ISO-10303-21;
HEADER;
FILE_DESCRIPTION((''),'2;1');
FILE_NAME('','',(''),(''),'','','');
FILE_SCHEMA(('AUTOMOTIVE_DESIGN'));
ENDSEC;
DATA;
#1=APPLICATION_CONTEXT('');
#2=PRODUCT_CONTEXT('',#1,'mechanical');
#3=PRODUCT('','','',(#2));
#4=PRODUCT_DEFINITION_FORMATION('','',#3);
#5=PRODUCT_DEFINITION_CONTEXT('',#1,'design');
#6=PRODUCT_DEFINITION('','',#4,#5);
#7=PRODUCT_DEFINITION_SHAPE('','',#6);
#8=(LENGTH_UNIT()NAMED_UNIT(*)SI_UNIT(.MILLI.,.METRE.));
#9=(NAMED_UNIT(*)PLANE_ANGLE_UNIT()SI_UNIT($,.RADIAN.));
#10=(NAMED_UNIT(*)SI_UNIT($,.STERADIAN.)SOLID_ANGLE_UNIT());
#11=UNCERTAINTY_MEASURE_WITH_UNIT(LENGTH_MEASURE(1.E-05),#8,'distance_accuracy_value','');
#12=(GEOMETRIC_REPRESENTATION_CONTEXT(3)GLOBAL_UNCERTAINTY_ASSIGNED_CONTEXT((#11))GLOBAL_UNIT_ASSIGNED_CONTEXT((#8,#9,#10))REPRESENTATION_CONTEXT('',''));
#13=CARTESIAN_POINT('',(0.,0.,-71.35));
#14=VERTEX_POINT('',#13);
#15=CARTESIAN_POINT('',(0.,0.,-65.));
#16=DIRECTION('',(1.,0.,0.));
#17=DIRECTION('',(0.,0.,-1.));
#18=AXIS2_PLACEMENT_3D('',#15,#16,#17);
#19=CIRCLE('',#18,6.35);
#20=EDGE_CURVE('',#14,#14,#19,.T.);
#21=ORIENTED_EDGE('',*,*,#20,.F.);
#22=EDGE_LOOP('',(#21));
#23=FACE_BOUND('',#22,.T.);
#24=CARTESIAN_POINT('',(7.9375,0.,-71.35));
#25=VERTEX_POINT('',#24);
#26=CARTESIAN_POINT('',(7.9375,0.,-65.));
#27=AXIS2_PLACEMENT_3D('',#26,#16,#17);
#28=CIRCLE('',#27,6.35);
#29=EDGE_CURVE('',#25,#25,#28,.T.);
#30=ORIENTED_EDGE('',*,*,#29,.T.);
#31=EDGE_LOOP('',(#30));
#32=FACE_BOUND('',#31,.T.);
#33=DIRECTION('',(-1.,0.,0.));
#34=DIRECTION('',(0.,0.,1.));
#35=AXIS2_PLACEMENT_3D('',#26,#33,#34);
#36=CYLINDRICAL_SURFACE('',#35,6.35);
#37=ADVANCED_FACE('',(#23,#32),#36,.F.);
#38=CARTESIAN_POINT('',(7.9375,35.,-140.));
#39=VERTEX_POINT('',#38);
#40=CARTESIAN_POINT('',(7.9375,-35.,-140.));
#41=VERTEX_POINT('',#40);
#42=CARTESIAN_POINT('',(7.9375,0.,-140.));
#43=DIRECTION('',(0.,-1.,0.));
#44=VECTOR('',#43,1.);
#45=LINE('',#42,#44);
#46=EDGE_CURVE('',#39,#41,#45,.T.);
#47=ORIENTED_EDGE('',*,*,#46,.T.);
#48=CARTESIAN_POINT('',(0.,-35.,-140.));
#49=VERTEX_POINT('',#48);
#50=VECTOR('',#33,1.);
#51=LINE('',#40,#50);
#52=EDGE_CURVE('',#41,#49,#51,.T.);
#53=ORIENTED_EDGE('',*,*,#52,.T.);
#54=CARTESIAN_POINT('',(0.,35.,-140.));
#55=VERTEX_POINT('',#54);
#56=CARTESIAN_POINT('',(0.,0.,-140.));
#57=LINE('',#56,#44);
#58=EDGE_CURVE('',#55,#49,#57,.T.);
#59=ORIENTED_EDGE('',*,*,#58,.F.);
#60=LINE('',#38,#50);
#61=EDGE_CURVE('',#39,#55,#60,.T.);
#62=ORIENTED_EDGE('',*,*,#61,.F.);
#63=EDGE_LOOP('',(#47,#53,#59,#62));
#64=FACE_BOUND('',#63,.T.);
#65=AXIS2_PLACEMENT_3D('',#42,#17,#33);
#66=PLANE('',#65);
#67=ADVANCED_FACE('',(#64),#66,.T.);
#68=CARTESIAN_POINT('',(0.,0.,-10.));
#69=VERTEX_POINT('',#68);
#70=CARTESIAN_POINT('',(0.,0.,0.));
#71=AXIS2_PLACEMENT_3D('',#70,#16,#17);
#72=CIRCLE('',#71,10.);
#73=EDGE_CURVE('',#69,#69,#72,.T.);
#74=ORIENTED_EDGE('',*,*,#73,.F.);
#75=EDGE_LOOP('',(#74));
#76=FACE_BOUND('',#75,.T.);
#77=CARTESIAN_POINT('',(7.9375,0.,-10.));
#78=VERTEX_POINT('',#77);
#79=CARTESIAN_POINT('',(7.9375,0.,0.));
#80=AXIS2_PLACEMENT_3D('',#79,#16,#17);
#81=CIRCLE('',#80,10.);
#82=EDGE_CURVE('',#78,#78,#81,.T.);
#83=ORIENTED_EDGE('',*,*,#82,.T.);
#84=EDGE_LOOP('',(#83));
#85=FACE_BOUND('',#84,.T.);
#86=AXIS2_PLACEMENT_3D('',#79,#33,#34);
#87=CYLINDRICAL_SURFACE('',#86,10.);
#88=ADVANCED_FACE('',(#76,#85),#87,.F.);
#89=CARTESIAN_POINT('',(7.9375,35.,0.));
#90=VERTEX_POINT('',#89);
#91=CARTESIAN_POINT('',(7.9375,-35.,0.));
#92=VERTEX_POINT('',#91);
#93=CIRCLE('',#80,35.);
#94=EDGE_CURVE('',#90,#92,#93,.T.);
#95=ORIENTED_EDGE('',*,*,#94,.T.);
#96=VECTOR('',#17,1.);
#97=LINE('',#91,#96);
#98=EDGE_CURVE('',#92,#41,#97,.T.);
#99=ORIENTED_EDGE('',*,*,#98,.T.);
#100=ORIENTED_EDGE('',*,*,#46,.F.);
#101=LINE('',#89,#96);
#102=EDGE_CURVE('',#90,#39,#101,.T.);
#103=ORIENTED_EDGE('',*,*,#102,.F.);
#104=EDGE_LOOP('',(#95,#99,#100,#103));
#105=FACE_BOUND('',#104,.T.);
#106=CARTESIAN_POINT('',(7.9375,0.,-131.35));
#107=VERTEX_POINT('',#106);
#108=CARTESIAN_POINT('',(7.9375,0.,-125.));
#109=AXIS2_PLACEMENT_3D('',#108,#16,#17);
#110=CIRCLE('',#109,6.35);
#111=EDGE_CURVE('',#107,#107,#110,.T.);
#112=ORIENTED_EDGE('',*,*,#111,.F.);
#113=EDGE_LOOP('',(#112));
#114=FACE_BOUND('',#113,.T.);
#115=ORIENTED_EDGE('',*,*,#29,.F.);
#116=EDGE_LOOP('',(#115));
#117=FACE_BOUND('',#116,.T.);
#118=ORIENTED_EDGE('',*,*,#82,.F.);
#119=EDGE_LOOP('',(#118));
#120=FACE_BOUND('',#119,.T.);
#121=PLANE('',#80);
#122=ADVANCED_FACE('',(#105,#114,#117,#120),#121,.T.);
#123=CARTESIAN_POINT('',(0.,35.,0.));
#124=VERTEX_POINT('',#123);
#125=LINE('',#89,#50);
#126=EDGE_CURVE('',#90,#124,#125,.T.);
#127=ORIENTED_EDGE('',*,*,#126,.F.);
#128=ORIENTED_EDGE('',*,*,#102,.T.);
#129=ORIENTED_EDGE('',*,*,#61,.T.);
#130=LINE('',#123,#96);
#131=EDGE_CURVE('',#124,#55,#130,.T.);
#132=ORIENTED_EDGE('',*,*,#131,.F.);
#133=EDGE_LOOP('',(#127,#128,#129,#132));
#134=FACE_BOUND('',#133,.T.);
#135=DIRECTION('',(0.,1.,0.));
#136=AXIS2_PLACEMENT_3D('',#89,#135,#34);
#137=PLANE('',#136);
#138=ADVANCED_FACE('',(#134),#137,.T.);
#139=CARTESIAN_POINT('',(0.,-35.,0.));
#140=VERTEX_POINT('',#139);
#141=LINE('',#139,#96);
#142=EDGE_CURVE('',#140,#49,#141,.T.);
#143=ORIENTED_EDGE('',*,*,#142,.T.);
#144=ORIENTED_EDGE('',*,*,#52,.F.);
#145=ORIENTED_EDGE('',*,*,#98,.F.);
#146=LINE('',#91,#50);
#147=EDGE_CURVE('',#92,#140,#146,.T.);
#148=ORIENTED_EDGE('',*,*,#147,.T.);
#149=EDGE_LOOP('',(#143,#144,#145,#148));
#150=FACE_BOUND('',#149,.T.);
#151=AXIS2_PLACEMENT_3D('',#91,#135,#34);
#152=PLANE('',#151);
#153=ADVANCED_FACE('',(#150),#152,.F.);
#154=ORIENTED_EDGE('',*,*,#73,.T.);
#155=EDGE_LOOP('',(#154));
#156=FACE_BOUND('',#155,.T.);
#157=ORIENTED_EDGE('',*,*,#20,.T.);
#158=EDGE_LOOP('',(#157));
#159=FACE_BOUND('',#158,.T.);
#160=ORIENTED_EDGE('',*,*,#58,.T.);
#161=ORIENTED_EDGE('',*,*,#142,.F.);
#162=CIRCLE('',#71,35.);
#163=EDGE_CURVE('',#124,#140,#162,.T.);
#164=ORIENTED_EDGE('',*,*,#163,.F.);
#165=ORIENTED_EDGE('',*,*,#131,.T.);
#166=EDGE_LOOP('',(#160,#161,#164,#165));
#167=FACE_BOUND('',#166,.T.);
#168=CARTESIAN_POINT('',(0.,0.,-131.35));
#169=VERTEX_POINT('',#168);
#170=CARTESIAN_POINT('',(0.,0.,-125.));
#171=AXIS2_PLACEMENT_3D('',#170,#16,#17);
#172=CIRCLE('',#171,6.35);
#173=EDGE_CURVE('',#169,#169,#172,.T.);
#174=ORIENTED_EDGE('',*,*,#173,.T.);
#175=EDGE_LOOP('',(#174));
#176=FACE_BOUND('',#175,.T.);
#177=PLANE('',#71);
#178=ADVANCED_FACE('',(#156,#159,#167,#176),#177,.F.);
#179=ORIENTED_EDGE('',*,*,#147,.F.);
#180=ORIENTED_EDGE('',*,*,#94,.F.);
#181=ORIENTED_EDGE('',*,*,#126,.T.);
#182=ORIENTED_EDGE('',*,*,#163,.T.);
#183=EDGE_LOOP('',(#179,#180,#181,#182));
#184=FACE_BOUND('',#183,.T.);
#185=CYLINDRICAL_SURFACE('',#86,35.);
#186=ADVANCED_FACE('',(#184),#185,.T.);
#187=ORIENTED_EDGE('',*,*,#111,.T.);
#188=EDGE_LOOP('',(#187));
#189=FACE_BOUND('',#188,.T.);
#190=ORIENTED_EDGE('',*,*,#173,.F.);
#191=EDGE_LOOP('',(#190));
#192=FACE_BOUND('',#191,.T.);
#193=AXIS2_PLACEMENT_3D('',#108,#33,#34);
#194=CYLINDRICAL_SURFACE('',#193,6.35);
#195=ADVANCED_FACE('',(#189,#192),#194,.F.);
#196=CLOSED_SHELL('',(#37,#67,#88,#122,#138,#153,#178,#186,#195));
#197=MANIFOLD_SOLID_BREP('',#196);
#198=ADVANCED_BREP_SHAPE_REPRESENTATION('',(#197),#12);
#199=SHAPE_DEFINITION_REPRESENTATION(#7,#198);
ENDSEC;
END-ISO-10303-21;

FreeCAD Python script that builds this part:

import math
import FreeCAD as App
import Part
import Sketcher

doc = App.newDocument("Part")
params = doc.addObject("Spreadsheet::Sheet", "Params")
for row, (alias, value) in enumerate([
    ("sketch1_diameter", "20 mm"),
    ("sketch1_radius", "35 mm"),
    ("sketch1_diameter2", "12.7 mm"),
    ("sketch1_height", "140 mm"),
    ("pad1_length", "7.9375 mm"),
], start=1):
    params.set(f"A{row}", alias)
    params.set(f"B{row}", "=" + value)
    params.setAlias(f"B{row}", alias)

body = doc.addObject("PartDesign::Body", "Body")

# Sketch on YZ plane
sketch1 = doc.addObject("Sketcher::SketchObject", "Sketch")
body.addObject(sketch1)
sketch1.AttachmentSupport = (doc.YZ_Plane, [""])
sketch1.MapMode = "FlatFace"
sketch1.addGeometry(Part.LineSegment(App.Vector(-35, 0, 0), App.Vector(-35, -140, 0)), False)
sketch1.addGeometry(Part.LineSegment(App.Vector(-35, -140, 0), App.Vector(35, -140, 0)), False)
sketch1.addGeometry(Part.LineSegment(App.Vector(35, -140, 0), App.Vector(35, 0, 0)), False)
sketch1.addGeometry(Part.ArcOfCircle(Part.Circle(App.Vector(0, 0, 0), App.Vector(0, 0, 1), 35), math.radians(0), math.radians(180)), False)
sketch1.addGeometry(Part.Circle(App.Vector(0, 0, 0), App.Vector(0, 0, 1), 10), False)
sketch1.addGeometry(Part.Circle(App.Vector(0, -65, 0), App.Vector(0, 0, 1), 6), False)
sketch1.addGeometry(Part.Circle(App.Vector(0, -125, 0), App.Vector(0, 0, 1), 6), False)
sketch1.addConstraint(Sketcher.Constraint("Coincident", 0, 2, 1, 1))
sketch1.addConstraint(Sketcher.Constraint("Coincident", 1, 2, 2, 1))
sketch1.addConstraint(Sketcher.Constraint("Tangent", 2, 2, 3, 1))
sketch1.addConstraint(Sketcher.Constraint("Tangent", 3, 2, 0, 1))
sketch1.addConstraint(Sketcher.Constraint("Vertical", 0))
sketch1.addConstraint(Sketcher.Constraint("Horizontal", 1))
sketch1.addConstraint(Sketcher.Constraint("Vertical", 2))
sketch1.addConstraint(Sketcher.Constraint("Coincident", 3, 3, -1, 1))
sketch1.addConstraint(Sketcher.Constraint("Coincident", 4, 3, -1, 1))
sketch1.addConstraint(Sketcher.Constraint("Equal", 5, 6))
sketch1.addConstraint(Sketcher.Constraint("PointOnObject", 5, 3, -2))
sketch1.addConstraint(Sketcher.Constraint("PointOnObject", 6, 3, -2))
sketch1.addConstraint(Sketcher.Constraint("Diameter", 4, 20.0))
sketch1.addConstraint(Sketcher.Constraint("Radius", 3, 35.0))
sketch1.addConstraint(Sketcher.Constraint("Diameter", 5, 12.7))
sketch1.addConstraint(Sketcher.Constraint("DistanceY", 0, 2, 0, 1, 140.0))
sketch1.addConstraint(Sketcher.Constraint("DistanceY", 5, 3, -1, 1, 65.0))
sketch1.addConstraint(Sketcher.Constraint("DistanceY", 6, 3, -1, 1, 125.0))
sketch1.setExpression("Constraints[12]", "Params.sketch1_diameter")
sketch1.setExpression("Constraints[13]", "Params.sketch1_radius")
sketch1.setExpression("Constraints[14]", "Params.sketch1_diameter2")
sketch1.setExpression("Constraints[15]", "Params.sketch1_height")
pad1 = doc.addObject("PartDesign::Pad", "Pad")
body.addObject(pad1)
pad1.Profile = sketch1
pad1.setExpression("Length", "Params.pad1_length")

doc.recompute()
